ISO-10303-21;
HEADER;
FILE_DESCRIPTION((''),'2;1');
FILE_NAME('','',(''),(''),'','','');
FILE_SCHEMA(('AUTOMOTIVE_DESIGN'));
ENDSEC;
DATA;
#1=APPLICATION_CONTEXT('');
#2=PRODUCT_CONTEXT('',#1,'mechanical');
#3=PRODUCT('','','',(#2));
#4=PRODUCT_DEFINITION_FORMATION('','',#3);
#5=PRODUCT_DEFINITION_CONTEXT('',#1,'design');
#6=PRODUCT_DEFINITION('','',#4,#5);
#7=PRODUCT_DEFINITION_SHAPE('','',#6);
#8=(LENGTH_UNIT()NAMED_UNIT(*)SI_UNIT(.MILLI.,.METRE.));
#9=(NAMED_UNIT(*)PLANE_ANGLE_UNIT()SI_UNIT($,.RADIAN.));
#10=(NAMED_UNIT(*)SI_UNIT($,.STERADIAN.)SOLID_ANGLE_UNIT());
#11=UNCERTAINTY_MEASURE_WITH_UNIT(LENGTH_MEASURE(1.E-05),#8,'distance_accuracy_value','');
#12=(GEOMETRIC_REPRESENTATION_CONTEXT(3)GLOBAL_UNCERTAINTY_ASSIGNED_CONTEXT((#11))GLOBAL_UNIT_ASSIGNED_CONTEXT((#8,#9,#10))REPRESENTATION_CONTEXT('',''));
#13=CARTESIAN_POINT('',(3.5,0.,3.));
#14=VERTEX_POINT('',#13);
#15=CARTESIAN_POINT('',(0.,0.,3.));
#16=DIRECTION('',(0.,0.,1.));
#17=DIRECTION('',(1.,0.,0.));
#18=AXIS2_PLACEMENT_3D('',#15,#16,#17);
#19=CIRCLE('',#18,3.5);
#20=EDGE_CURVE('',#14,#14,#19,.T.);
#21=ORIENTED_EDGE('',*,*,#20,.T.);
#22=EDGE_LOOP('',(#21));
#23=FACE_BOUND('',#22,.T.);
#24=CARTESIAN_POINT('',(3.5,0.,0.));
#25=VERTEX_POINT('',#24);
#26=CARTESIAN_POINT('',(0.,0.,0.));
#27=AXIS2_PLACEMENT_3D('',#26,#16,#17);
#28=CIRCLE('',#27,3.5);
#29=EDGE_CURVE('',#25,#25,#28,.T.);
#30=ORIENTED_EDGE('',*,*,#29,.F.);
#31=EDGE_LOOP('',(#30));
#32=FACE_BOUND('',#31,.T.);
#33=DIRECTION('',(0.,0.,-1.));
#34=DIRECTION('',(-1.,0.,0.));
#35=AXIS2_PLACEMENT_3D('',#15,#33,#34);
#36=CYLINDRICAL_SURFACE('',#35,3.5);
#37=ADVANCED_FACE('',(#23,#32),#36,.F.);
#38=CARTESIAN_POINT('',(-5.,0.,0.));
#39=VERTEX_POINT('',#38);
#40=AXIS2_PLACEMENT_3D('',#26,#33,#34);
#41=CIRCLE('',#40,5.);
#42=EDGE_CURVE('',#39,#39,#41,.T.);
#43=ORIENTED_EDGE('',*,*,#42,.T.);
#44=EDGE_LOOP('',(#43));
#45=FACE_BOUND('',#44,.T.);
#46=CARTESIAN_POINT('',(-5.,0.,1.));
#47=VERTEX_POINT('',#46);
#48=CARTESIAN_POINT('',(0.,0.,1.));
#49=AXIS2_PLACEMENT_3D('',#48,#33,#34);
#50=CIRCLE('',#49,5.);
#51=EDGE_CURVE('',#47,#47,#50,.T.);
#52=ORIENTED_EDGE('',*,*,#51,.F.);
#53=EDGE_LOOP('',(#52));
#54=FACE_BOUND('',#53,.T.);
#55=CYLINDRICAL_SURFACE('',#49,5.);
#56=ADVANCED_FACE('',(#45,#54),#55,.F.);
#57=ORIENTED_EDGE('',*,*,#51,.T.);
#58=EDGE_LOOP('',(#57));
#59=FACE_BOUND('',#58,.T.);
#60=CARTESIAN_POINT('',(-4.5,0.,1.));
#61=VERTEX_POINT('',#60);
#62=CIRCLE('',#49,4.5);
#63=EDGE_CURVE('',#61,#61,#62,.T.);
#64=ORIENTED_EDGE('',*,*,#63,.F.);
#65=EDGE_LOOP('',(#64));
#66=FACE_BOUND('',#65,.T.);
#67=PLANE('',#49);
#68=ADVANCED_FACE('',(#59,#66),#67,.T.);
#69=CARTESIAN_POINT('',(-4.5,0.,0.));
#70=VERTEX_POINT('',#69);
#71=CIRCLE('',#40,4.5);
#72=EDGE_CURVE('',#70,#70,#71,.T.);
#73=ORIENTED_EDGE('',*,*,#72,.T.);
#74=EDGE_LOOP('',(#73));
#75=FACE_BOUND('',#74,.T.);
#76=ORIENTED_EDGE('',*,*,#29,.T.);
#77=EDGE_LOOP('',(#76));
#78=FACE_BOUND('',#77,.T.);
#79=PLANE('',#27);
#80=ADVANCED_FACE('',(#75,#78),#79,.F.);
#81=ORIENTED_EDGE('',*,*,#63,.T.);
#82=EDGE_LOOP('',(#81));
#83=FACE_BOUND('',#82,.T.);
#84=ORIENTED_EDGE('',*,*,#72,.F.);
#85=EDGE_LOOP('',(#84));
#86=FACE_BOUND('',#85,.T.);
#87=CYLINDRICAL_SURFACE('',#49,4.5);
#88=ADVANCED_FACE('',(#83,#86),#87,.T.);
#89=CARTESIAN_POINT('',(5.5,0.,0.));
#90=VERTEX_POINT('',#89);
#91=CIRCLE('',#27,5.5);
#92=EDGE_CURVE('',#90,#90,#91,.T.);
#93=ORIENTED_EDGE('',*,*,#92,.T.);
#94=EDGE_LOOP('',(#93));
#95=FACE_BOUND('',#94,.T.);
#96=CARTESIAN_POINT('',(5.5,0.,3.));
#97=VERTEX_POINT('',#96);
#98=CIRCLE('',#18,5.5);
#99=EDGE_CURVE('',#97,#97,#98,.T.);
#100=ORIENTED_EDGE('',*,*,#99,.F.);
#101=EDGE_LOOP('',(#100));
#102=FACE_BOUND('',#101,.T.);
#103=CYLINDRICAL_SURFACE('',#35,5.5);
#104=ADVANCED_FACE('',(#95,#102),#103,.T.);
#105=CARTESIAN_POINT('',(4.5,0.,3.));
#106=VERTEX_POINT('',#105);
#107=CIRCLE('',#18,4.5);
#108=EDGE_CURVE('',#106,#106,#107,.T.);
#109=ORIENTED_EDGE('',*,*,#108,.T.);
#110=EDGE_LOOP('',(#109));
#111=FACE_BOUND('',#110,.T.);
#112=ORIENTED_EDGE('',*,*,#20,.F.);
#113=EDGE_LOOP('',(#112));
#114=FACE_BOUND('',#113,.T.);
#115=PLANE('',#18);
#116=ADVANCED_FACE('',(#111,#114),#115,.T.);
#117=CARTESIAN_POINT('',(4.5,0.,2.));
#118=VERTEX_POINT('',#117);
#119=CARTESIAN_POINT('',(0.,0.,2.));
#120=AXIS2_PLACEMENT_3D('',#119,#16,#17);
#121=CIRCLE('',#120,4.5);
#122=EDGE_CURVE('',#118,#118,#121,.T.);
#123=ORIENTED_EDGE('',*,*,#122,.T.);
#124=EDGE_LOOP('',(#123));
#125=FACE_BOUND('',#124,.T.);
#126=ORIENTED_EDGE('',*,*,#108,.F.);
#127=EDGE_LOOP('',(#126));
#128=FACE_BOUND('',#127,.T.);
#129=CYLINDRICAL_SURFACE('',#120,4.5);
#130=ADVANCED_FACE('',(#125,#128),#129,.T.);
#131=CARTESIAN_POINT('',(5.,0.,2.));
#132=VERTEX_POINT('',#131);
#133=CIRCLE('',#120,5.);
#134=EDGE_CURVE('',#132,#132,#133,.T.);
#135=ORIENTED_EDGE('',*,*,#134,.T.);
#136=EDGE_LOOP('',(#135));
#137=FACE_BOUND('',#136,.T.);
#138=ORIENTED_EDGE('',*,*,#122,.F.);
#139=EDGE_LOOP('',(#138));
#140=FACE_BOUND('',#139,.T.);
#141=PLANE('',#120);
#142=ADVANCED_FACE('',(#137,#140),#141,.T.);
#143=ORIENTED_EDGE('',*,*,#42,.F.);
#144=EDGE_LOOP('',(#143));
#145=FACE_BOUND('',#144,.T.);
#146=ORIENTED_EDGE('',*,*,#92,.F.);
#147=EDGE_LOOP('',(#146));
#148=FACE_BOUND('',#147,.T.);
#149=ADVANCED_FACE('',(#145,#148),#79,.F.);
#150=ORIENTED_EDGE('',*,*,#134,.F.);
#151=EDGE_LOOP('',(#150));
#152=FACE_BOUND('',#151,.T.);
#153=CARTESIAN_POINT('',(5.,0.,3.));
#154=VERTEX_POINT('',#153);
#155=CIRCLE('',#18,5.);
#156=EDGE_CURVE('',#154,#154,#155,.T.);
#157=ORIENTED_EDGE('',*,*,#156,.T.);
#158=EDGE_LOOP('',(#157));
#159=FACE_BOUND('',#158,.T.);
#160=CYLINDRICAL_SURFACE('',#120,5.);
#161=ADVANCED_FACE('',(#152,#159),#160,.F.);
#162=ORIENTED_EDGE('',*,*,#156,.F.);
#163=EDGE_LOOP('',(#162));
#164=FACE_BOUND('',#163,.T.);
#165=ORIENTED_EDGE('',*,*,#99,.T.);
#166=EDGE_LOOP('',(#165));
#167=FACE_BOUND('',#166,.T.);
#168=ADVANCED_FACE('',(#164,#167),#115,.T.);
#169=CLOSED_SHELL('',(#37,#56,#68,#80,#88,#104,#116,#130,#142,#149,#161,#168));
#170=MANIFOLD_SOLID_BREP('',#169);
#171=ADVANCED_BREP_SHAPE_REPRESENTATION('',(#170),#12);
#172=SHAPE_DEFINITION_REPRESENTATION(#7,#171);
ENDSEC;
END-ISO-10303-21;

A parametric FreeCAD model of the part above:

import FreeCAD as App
import Part
import Sketcher

V = App.Vector

doc = App.newDocument("Part")
body = doc.addObject("PartDesign::Body", "Body")

# Sketch on XY plane
sketch1 = doc.addObject("Sketcher::SketchObject", "Sketch")
body.addObject(sketch1)
sketch1.AttachmentSupport = (doc.XY_Plane, [""])
sketch1.MapMode = "FlatFace"
sketch1.addGeometry([
    Part.Circle(V(0, 0, 0), V(0, 0, 1), 5.5),
    Part.Circle(V(0, 0, 0), V(0, 0, 1), 3.5),
], False)
sketch1.addConstraint([
    Sketcher.Constraint("Coincident", 0, 3, -1, 1),
    Sketcher.Constraint("Coincident", 1, 3, -1, 1),
    Sketcher.Constraint("Diameter", 0, 11.0),
    Sketcher.Constraint("Diameter", 1, 7.0),
])
pad1 = doc.addObject("PartDesign::Pad", "Pad")
body.addObject(pad1)
pad1.Profile = sketch1
pad1.Length = 3

# Sketch on XY plane
sketch2 = doc.addObject("Sketcher::SketchObject", "Sketch001")
body.addObject(sketch2)
sketch2.AttachmentSupport = (doc.XY_Plane, [""])
sketch2.MapMode = "FlatFace"
sketch2.AttachmentOffset = App.Placement(V(0, 0, 3), App.Rotation())
sketch2.addGeometry([
    Part.Circle(V(0, 0, 0), V(0, 0, 1), 5),
    Part.Circle(V(0, 0, 0), V(0, 0, 1), 4.5),
], False)
sketch2.addConstraint([
    Sketcher.Constraint("Coincident", 0, 3, -1, 1),
    Sketcher.Constraint("Coincident", 1, 3, -1, 1),
    Sketcher.Constraint("Diameter", 0, 10.0),
    Sketcher.Constraint("Diameter", 1, 9.0),
])
pocket1 = doc.addObject("PartDesign::Pocket", "Pocket")
body.addObject(pocket1)
pocket1.Profile = sketch2
pocket1.Length = 1

# Sketch on XY plane
sketch3 = doc.addObject("Sketcher::SketchObject", "Sketch002")
body.addObject(sketch3)
sketch3.AttachmentSupport = (doc.XY_Plane, [""])
sketch3.MapMode = "FlatFace"
sketch3.addGeometry([
    Part.Circle(V(0, 0, 0), V(0, 0, 1), 5),
    Part.Circle(V(0, 0, 0), V(0, 0, 1), 4.5),
], False)
sketch3.addConstraint([
    Sketcher.Constraint("Coincident", 0, 3, -1, 1),
    Sketcher.Constraint("Coincident", 1, 3, -1, 1),
    Sketcher.Constraint("Diameter", 0, 10.0),
    Sketcher.Constraint("Diameter", 1, 9.0),
])
pocket2 = doc.addObject("PartDesign::Pocket", "Pocket001")
body.addObject(pocket2)
pocket2.Profile = sketch3
pocket2.Length = 1
pocket2.Reversed = True

doc.recompute()
